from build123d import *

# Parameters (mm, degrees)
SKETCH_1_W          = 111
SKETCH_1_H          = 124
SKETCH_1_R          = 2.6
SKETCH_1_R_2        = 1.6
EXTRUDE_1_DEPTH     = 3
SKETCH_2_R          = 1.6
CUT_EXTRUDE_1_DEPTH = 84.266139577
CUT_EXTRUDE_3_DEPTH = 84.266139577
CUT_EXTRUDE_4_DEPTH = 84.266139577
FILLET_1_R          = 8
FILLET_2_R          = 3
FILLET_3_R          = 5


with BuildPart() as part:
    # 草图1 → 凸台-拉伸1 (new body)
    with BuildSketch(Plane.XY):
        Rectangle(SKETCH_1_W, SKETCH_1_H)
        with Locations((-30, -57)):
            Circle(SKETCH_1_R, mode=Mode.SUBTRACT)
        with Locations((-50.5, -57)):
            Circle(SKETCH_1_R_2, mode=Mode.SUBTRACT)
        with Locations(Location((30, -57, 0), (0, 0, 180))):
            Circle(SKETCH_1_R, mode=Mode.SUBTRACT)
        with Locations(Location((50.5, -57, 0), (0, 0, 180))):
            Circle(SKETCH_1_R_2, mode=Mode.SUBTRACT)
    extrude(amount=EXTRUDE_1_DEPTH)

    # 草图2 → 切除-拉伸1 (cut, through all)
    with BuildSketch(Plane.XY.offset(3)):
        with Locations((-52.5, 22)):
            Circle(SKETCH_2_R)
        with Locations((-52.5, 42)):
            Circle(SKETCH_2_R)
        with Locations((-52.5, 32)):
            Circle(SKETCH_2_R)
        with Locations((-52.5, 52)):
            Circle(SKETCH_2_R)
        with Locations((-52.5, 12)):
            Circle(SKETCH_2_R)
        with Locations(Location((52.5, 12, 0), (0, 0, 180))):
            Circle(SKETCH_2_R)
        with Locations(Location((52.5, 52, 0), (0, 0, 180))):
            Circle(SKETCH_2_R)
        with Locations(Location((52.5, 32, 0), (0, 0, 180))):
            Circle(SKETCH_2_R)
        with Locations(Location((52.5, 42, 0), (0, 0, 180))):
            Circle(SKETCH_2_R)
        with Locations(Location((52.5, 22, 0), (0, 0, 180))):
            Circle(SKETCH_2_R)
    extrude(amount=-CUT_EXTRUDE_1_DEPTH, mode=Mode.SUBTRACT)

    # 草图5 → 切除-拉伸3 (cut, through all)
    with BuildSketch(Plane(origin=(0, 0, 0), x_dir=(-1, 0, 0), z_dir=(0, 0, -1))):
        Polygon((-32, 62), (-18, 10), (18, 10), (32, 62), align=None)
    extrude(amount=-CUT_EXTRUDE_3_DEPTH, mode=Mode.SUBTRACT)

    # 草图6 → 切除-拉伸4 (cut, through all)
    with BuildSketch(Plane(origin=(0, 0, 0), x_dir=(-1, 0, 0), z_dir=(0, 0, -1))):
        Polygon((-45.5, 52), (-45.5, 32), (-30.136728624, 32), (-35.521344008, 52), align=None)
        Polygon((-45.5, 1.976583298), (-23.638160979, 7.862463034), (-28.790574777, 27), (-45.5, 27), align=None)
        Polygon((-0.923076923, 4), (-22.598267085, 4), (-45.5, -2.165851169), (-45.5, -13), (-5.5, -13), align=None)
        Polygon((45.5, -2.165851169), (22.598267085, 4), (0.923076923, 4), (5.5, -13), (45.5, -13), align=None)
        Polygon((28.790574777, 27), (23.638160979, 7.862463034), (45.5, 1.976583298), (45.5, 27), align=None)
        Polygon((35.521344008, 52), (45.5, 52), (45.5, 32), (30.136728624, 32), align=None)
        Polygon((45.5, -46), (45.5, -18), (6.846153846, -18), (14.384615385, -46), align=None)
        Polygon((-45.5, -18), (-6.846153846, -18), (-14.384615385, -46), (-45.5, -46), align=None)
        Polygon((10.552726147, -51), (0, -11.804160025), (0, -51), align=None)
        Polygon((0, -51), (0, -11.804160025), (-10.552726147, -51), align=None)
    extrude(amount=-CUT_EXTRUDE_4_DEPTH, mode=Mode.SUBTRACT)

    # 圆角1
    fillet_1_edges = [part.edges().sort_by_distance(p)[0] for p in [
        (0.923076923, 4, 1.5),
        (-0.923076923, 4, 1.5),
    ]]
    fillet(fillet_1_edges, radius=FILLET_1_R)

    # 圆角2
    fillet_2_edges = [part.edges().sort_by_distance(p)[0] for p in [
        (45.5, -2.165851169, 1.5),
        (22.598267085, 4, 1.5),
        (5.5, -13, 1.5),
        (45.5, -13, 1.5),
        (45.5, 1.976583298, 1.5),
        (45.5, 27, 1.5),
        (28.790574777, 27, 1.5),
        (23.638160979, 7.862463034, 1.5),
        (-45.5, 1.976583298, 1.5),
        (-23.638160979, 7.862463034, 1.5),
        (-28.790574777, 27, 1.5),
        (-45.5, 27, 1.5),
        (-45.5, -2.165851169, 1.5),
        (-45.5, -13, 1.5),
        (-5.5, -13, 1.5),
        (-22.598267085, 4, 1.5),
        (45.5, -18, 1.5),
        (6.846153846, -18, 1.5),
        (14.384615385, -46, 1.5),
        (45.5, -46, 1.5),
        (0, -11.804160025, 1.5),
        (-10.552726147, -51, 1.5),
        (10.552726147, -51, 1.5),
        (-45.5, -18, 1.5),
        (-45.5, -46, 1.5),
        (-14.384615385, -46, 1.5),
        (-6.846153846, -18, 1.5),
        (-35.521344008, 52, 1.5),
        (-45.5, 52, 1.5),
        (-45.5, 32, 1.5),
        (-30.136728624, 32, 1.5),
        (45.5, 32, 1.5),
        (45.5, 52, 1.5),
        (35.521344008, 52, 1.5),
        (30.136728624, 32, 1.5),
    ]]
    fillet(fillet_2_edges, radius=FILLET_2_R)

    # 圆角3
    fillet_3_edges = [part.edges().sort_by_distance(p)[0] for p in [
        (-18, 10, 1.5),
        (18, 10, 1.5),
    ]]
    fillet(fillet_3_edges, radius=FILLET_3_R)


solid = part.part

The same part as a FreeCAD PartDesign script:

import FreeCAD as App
import Part
import Sketcher

V = App.Vector
Q = App.Units.Quantity


def edges_at(feature, points):
    """Names of the edges that pass closest to the given points."""
    edges = feature.Shape.Edges
    near = lambda p: min(range(len(edges)), key=lambda i: edges[i].distToShape(Part.Vertex(*p))[0])
    return sorted({f"Edge{near(p) + 1}" for p in points})


def add_polygon(sketch, points):
    """Adds a closed chain of lines whose ends are joined by coincident constraints."""
    first, n = sketch.GeometryCount, len(points)
    for a, b in zip(points, points[1:] + points[:1]):
        sketch.addGeometry(Part.LineSegment(App.Vector(*a, 0), App.Vector(*b, 0)), False)
    for i in range(n):
        sketch.addConstraint(Sketcher.Constraint("Coincident", first + i, 2, first + (i + 1) % n, 1))

doc = App.newDocument("Part")
body = doc.addObject("PartDesign::Body", "Body")

# Sketch on XY plane
sketch1 = body.newObject("Sketcher::SketchObject", "Sketch")
sketch1.AttachmentSupport = (doc.getObject("XY_Plane"), [""])
sketch1.MapMode = "FlatFace"
add_polygon(sketch1, [(-55.5, 62), (-55.5, -62), (55.5, -62), (55.5, 62)])  # lines 0-3
sketch1.addGeometry(Part.Circle(V(-50.5, -57, 0), V(0, 0, 1), 1.6), False)  # 4
sketch1.addGeometry(Part.Circle(V(-30, -57, 0), V(0, 0, 1), 2.6), False)  # 5
sketch1.addGeometry(Part.Circle(V(30, -57, 0), V(0, 0, 1), 2.6), False)  # 6
sketch1.addGeometry(Part.Circle(V(50.5, -57, 0), V(0, 0, 1), 1.6), False)  # 7
sketch1.addConstraint([
    Sketcher.Constraint("Vertical", 0),
    Sketcher.Constraint("Horizontal", 1),
    Sketcher.Constraint("Vertical", 2),
    Sketcher.Constraint("Horizontal", 3),
    Sketcher.Constraint("Equal", 5, 6),
    Sketcher.Constraint("Equal", 4, 7),
    Sketcher.Constraint("Symmetric", 0, 2, 2, 2, -1, 1),
    Sketcher.Constraint("Symmetric", 5, 3, 6, 3, -2),
    Sketcher.Constraint("Symmetric", 4, 3, 7, 3, -2),
    Sketcher.Constraint("Horizontal", 4, 3, 5, 3),
    Sketcher.Constraint("Diameter", 4, Q("3.2 mm")),
    Sketcher.Constraint("Diameter", 5, Q("5.2 mm")),
    Sketcher.Constraint("DistanceX", 1, 1, 1, 2, Q("111 mm")),
    Sketcher.Constraint("DistanceY", 0, 2, 0, 1, Q("124 mm")),
    Sketcher.Constraint("DistanceY", 4, 3, -1, 1, Q("57 mm")),
    Sketcher.Constraint("DistanceX", 5, 3, -1, 1, Q("30 mm")),
    Sketcher.Constraint("DistanceX", 4, 3, 7, 3, Q("101 mm")),
])
pad1 = body.newObject("PartDesign::Pad", "Pad")
pad1.Profile = sketch1
pad1.Length = 3

# Sketch on XY plane
sketch2 = body.newObject("Sketcher::SketchObject", "Sketch001")
sketch2.AttachmentSupport = (doc.getObject("XY_Plane"), [""])
sketch2.MapMode = "FlatFace"
sketch2.AttachmentOffset = App.Placement(V(0, 0, 3), App.Rotation())
sketch2.addGeometry([
    Part.Circle(V(-52.5, 22, 0), V(0, 0, 1), 1.6),  # 0
    Part.Circle(V(-52.5, 42, 0), V(0, 0, 1), 1.6),  # 1
    Part.Circle(V(-52.5, 32, 0), V(0, 0, 1), 1.6),  # 2
    Part.Circle(V(-52.5, 52, 0), V(0, 0, 1), 1.6),  # 3
    Part.Circle(V(-52.5, 12, 0), V(0, 0, 1), 1.6),  # 4
    Part.Circle(V(52.5, 12, 0), V(0, 0, 1), 1.6),  # 5
    Part.Circle(V(52.5, 52, 0), V(0, 0, 1), 1.6),  # 6
    Part.Circle(V(52.5, 32, 0), V(0, 0, 1), 1.6),  # 7
    Part.Circle(V(52.5, 42, 0), V(0, 0, 1), 1.6),  # 8
    Part.Circle(V(52.5, 22, 0), V(0, 0, 1), 1.6),  # 9
], False)
sketch2.addConstraint([
    Sketcher.Constraint("Equal", 0, 1),
    Sketcher.Constraint("Equal", 1, 2),
    Sketcher.Constraint("Equal", 2, 3),
    Sketcher.Constraint("Equal", 3, 4),
    Sketcher.Constraint("Equal", 4, 5),
    Sketcher.Constraint("Equal", 5, 6),
    Sketcher.Constraint("Equal", 6, 7),
    Sketcher.Constraint("Equal", 7, 8),
    Sketcher.Constraint("Equal", 8, 9),
    Sketcher.Constraint("Symmetric", 4, 3, 5, 3, -2),
    Sketcher.Constraint("Symmetric", 3, 3, 6, 3, -2),
    Sketcher.Constraint("Symmetric", 2, 3, 7, 3, -2),
    Sketcher.Constraint("Symmetric", 1, 3, 8, 3, -2),
    Sketcher.Constraint("Symmetric", 0, 3, 9, 3, -2),
    Sketcher.Constraint("Vertical", 0, 3, 1, 3),
    Sketcher.Constraint("Vertical", 1, 3, 2, 3),
    Sketcher.Constraint("Vertical", 2, 3, 3, 3),
    Sketcher.Constraint("Vertical", 3, 3, 4, 3),
    Sketcher.Constraint("Diameter", 0, Q("3.2 mm")),
    Sketcher.Constraint("DistanceY", -1, 1, 0, 3, Q("22 mm")),
    Sketcher.Constraint("DistanceY", -1, 1, 1, 3, Q("42 mm")),
    Sketcher.Constraint("DistanceY", -1, 1, 2, 3, Q("32 mm")),
    Sketcher.Constraint("DistanceY", -1, 1, 3, 3, Q("52 mm")),
    Sketcher.Constraint("DistanceY", -1, 1, 4, 3, Q("12 mm")),
    Sketcher.Constraint("DistanceX", 4, 3, 5, 3, Q("105 mm")),
])
pocket1 = body.newObject("PartDesign::Pocket", "Pocket")
pocket1.Profile = sketch2
pocket1.Type = "ThroughAll"

# Sketch on XY plane
sketch3 = body.newObject("Sketcher::SketchObject", "Sketch002")
sketch3.AttachmentSupport = (doc.getObject("XY_Plane"), [""])
sketch3.MapMode = "FlatFace"
add_polygon(sketch3, [(32, 62), (18, 10), (-18, 10), (-32, 62)])  # lines 0-3
sketch3.addConstraint([
    Sketcher.Constraint("Horizontal", 1),
    Sketcher.Constraint("Horizontal", 3),
    Sketcher.Constraint("Equal", 0, 2),
    Sketcher.Constraint("DistanceX", 1, 2, 1, 1, Q("36 mm")),
    Sketcher.Constraint("DistanceX", 3, 1, 3, 2, Q("64 mm")),
    Sketcher.Constraint("DistanceX", -1, 1, 0, 2, Q("18 mm")),
    Sketcher.Constraint("DistanceY", -1, 1, 0, 2, Q("10 mm")),
    Sketcher.Constraint("DistanceY", -1, 1, 2, 2, Q("62 mm")),
])
pocket2 = body.newObject("PartDesign::Pocket", "Pocket001")
pocket2.Profile = sketch3
pocket2.Type = "ThroughAll"
pocket2.Reversed = True

# Sketch on XY plane
sketch4 = body.newObject("Sketcher::SketchObject", "Sketch003")
sketch4.AttachmentSupport = (doc.getObject("XY_Plane"), [""])
sketch4.MapMode = "FlatFace"
add_polygon(sketch4, [(45.5, 52), (45.5, 32), (30.136729, 32), (35.521344, 52)])  # lines 0-3
add_polygon(sketch4, [(45.5, 1.976583), (23.638161, 7.862463), (28.790575, 27), (45.5, 27)])  # lines 4-7
add_polygon(sketch4, [(0.923077, 4), (22.598267, 4), (45.5, -2.165851), (45.5, -13), (5.5, -13)])  # lines 8-12
add_polygon(sketch4, [(-45.5, -2.165851), (-22.598267, 4), (-0.923077, 4), (-5.5, -13), (-45.5, -13)])  # lines 13-17
add_polygon(sketch4, [(-28.790575, 27), (-23.638161, 7.862463), (-45.5, 1.976583), (-45.5, 27)])  # lines 18-21
add_polygon(sketch4, [(-45.5, 52), (-35.521344, 52), (-30.136729, 32), (-45.5, 32)])  # lines 22-25
add_polygon(sketch4, [(-45.5, -46), (-45.5, -18), (-6.846154, -18), (-14.384615, -46)])  # lines 26-29
add_polygon(sketch4, [(6.846154, -18), (45.5, -18), (45.5, -46), (14.384615, -46)])  # lines 30-33
add_polygon(sketch4, [(-10.552726, -51), (0, -11.80416), (10.552726, -51)])  # lines 34-36
sketch4.addConstraint([
    Sketcher.Constraint("Vertical", 0),
    Sketcher.Constraint("Horizontal", 1),
    Sketcher.Constraint("Horizontal", 3),
    Sketcher.Constraint("Horizontal", 6),
    Sketcher.Constraint("Vertical", 7),
    Sketcher.Constraint("Horizontal", 8),
    Sketcher.Constraint("Vertical", 10),
    Sketcher.Constraint("Horizontal", 11),
    Sketcher.Constraint("Horizontal", 14),
    Sketcher.Constraint("Horizontal", 16),
    Sketcher.Constraint("Vertical", 17),
    Sketcher.Constraint("Vertical", 20),
    Sketcher.Constraint("Horizontal", 21),
    Sketcher.Constraint("Horizontal", 22),
    Sketcher.Constraint("Horizontal", 24),
    Sketcher.Constraint("Vertical", 25),
    Sketcher.Constraint("Vertical", 26),
    Sketcher.Constraint("Horizontal", 27),
    Sketcher.Constraint("Horizontal", 29),
    Sketcher.Constraint("Horizontal", 30),
    Sketcher.Constraint("Vertical", 31),
    Sketcher.Constraint("Horizontal", 32),
    Sketcher.Constraint("Horizontal", 36),
    Sketcher.Constraint("Symmetric", 8, 2, 13, 2, -2),
    Sketcher.Constraint("Symmetric", 11, 2, 15, 2, -2),
    Sketcher.Constraint("Symmetric", 9, 2, 17, 2, -2),
    Sketcher.Constraint("Symmetric", 4, 2, 18, 2, -2),
    Sketcher.Constraint("Symmetric", 7, 2, 19, 2, -2),
    Sketcher.Constraint("Symmetric", 5, 2, 21, 2, -2),
    Sketcher.Constraint("Symmetric", 2, 2, 22, 2, -2),
    Sketcher.Constraint("Symmetric", 1, 2, 23, 2, -2),
    Sketcher.Constraint("Symmetric", 26, 2, 30, 2, -2),
    Sketcher.Constraint("Symmetric", 28, 2, 32, 2, -2),
    Sketcher.Constraint("PointOnObject", 34, 2, -2),
    Sketcher.Constraint("Perpendicular", 2, 4),
    Sketcher.Constraint("Perpendicular", 4, 5),
    Sketcher.Constraint("Perpendicular", 5, 9),
    Sketcher.Constraint("Perpendicular", 12, 13),
    Sketcher.Constraint("Perpendicular", 9, 15),
    Sketcher.Constraint("Parallel", 15, 28),
    Sketcher.Constraint("Parallel", 23, 33),
    Sketcher.Constraint("Parallel", 28, 34),
    Sketcher.Constraint("Parallel", 33, 35),
    Sketcher.Constraint("Vertical", 3, 2, 6, 2),
    Sketcher.Constraint("Vertical", 7, 2, 9, 2),
    Sketcher.Constraint("Vertical", 20, 2, 24, 2),
    Sketcher.Constraint("Vertical", 25, 2, 26, 2),
    Sketcher.Constraint("DistanceX", 11, 2, 11, 1, Q("40 mm")),
    Sketcher.Constraint("DistanceY", 0, 2, 0, 1, Q("20 mm")),
    Sketcher.Constraint("DistanceY", 26, 1, 26, 2, Q("28 mm")),
    Sketcher.Constraint("DistanceY", -1, 1, 0, 2, Q("32 mm")),
    Sketcher.Constraint("DistanceY", -1, 1, 5, 2, Q("27 mm")),
    Sketcher.Constraint("DistanceY", -1, 1, 8, 2, Q("4 mm")),
    Sketcher.Constraint("DistanceY", 10, 2, -1, 1, Q("13 mm")),
    Sketcher.Constraint("DistanceY", 26, 2, -1, 1, Q("18 mm")),
    Sketcher.Constraint("DistanceY", 35, 2, -1, 1, Q("51 mm")),
    Sketcher.Constraint("DistanceX", 15, 2, 11, 2, Q("11 mm")),
    Sketcher.Constraint("Distance", 5, Q("19.818998 mm")),
    Sketcher.Constraint("DistanceX", 1, 2, 1, 1, Q("15.363271 mm")),
    Sketcher.Constraint("DistanceX", 8, 1, 8, 2, Q("21.67519 mm")),
    Sketcher.Constraint("DistanceY", 10, 2, 10, 1, Q("10.834149 mm")),
    Sketcher.Constraint("Distance", 4, Q("22.640309 mm")),
    Sketcher.Constraint("Distance", 34, Q("40.59155 mm")),
    Sketcher.Constraint("DistanceX", 27, 1, 27, 2, Q("38.653846 mm")),
])
pocket3 = body.newObject("PartDesign::Pocket", "Pocket002")
pocket3.Profile = sketch4
pocket3.Type = "ThroughAll"
pocket3.Reversed = True
doc.recompute()

fillet = body.newObject("PartDesign::Fillet", "Fillet")
fillet.Base = (pocket3, edges_at(pocket3, [(0.923, 4, 1.5), (-0.923, 4, 1.5)]))
fillet.Radius = 8
doc.recompute()

fillet2 = body.newObject("PartDesign::Fillet", "Fillet001")
fillet2.Base = (fillet, edges_at(fillet, [
    (45.5, -2.166, 1.5),
    (22.598, 4, 1.5),
    (5.5, -13, 1.5),
    (45.5, -13, 1.5),
    (45.5, 1.977, 1.5),
    (45.5, 27, 1.5),
    (28.791, 27, 1.5),
    (23.638, 7.862, 1.5),
    (-45.5, 1.977, 1.5),
    (-23.638, 7.862, 1.5),
    (-28.791, 27, 1.5),
    (-45.5, 27, 1.5),
    (-45.5, -2.166, 1.5),
    (-45.5, -13, 1.5),
    (-5.5, -13, 1.5),
    (-22.598, 4, 1.5),
    (45.5, -18, 1.5),
    (6.846, -18, 1.5),
    (14.385, -46, 1.5),
    (45.5, -46, 1.5),
    (0, -11.804, 1.5),
    (-10.553, -51, 1.5),
    (10.553, -51, 1.5),
    (-45.5, -18, 1.5),
    (-45.5, -46, 1.5),
    (-14.385, -46, 1.5),
    (-6.846, -18, 1.5),
    (-35.521, 52, 1.5),
    (-45.5, 52, 1.5),
    (-45.5, 32, 1.5),
    (-30.137, 32, 1.5),
    (45.5, 32, 1.5),
    (45.5, 52, 1.5),
    (35.521, 52, 1.5),
    (30.137, 32, 1.5),
]))
fillet2.Radius = 3
doc.recompute()

fillet3 = body.newObject("PartDesign::Fillet", "Fillet002")
fillet3.Base = (fillet2, edges_at(fillet2, [(-18, 10, 1.5), (18, 10, 1.5)]))
fillet3.Radius = 5

doc.recompute()
